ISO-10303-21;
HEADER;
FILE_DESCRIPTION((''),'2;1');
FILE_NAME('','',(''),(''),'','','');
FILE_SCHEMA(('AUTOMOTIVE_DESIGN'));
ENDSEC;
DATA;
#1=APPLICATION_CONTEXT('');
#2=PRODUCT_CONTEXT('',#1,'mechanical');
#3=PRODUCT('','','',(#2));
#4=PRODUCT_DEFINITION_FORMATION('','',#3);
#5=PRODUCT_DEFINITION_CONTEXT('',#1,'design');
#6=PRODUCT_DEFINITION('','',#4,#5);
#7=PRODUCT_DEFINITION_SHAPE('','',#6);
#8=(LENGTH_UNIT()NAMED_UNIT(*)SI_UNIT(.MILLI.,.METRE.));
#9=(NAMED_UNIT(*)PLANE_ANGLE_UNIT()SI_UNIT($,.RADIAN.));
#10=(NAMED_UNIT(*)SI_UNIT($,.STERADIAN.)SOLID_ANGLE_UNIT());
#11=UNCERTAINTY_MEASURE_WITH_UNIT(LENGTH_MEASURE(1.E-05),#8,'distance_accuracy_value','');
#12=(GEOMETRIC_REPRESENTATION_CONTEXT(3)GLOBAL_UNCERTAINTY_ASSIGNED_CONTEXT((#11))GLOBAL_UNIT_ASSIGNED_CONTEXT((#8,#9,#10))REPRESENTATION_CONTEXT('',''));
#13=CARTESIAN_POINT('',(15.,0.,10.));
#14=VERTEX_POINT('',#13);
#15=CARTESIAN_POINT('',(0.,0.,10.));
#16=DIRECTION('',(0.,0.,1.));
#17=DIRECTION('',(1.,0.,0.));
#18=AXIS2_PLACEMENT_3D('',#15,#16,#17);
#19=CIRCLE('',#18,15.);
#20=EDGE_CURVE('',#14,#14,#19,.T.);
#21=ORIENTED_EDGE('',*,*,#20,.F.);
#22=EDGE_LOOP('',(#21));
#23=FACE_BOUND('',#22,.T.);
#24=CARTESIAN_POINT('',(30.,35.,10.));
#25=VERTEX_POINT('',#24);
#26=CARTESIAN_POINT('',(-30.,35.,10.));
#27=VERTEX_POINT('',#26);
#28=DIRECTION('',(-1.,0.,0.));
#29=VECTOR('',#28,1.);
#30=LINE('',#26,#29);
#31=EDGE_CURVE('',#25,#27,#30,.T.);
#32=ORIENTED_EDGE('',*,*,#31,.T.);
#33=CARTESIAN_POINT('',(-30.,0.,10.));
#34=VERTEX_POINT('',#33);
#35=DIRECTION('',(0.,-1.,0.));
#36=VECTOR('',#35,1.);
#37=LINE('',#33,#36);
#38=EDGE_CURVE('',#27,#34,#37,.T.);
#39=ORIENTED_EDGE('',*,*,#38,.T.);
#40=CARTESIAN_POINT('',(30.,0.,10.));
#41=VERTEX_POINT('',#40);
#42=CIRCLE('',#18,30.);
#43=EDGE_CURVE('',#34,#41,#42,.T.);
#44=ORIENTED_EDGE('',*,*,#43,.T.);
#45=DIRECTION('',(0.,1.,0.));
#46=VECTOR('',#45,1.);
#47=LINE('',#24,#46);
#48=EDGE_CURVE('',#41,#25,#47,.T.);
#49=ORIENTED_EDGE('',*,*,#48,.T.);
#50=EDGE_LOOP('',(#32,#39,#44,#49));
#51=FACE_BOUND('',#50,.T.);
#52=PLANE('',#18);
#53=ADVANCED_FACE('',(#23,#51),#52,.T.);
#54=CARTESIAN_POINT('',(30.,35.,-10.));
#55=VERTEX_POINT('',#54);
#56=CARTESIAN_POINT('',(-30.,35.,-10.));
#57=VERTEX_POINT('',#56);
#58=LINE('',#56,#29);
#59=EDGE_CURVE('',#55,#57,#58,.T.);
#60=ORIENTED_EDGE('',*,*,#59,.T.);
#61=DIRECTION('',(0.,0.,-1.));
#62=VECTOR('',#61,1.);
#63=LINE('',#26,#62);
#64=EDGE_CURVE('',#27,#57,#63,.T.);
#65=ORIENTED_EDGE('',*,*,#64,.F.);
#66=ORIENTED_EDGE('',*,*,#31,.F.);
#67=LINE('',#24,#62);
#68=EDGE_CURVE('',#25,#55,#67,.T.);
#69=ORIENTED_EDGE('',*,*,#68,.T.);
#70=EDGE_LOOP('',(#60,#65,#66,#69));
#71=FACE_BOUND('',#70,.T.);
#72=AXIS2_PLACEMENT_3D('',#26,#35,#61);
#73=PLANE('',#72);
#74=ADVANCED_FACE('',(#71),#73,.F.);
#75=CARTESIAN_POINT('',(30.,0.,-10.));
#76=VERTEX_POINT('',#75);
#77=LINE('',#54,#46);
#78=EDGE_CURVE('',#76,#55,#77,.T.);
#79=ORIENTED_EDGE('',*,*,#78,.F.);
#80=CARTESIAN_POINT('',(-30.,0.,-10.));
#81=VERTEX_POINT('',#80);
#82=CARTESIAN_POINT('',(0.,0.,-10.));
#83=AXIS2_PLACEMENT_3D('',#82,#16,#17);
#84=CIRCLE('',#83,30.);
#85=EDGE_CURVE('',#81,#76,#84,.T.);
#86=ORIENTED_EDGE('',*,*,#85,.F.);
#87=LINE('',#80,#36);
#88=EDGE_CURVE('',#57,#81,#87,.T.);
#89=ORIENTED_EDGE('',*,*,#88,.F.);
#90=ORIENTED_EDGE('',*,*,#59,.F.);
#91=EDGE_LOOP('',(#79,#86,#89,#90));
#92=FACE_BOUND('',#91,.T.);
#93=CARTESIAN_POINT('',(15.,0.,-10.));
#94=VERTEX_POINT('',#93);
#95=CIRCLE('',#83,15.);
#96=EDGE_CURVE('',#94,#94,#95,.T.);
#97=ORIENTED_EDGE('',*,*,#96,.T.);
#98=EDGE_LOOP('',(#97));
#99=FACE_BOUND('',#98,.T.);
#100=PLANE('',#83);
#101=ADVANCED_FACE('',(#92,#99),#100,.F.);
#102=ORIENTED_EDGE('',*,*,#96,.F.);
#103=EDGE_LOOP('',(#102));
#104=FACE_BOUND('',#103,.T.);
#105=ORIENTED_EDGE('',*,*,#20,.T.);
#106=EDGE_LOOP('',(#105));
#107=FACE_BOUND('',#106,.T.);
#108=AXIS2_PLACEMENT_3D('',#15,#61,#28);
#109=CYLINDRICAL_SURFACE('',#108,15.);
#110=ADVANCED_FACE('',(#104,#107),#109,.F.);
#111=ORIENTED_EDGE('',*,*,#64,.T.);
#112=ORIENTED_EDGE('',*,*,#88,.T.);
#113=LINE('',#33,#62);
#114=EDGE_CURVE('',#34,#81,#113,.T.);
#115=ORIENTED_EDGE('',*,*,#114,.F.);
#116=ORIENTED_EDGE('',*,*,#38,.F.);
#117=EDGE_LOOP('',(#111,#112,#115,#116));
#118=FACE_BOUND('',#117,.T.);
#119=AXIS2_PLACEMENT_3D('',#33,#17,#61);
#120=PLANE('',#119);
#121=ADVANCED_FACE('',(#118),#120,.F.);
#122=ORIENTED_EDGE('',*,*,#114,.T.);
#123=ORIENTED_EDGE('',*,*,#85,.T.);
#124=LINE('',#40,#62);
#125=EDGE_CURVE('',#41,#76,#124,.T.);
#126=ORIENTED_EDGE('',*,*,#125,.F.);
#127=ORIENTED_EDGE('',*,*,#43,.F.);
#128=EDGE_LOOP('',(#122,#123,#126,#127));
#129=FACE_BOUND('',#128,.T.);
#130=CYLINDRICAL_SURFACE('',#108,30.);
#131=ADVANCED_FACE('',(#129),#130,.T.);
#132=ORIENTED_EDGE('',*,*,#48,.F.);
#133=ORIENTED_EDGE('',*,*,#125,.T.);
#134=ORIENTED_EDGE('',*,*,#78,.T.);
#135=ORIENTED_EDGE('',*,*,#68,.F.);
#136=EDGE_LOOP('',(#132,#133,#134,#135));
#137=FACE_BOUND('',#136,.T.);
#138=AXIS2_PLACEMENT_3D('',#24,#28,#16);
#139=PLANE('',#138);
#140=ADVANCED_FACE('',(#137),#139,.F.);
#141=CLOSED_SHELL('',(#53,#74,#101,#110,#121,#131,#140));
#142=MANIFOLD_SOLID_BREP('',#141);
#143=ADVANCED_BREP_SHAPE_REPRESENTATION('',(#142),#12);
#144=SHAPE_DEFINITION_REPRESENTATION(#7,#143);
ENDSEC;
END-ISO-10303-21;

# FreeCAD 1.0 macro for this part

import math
import FreeCAD as App
import Part
import Sketcher
from FreeCAD import Vector

doc = App.newDocument("Part")
body = doc.addObject("PartDesign::Body", "Body")

sketch1 = doc.addObject("Sketcher::SketchObject", "Sketch")
body.addObject(sketch1)
sketch1.AttachmentSupport = (doc.XY_Plane, [""])
sketch1.MapMode = "FlatFace"
sketch1.addGeometry([
    Part.LineSegment(Vector(-30, 35, 0), Vector(-30, 0, 0)),
    Part.ArcOfCircle(Part.Circle(Vector(0, 0, 0), Vector(0, 0, 1), 30), math.radians(180), math.radians(360)),
    Part.LineSegment(Vector(30, 0, 0), Vector(30, 35, 0)),
    Part.LineSegment(Vector(30, 35, 0), Vector(-30, 35, 0)),
    Part.Circle(Vector(0, 0, 0), Vector(0, 0, 1), 15),
], False)
sketch1.addConstraint([
    Sketcher.Constraint("Tangent", 0, 2, 1, 1),
    Sketcher.Constraint("Tangent", 1, 2, 2, 1),
    Sketcher.Constraint("Coincident", 2, 2, 3, 1),
    Sketcher.Constraint("Coincident", 3, 2, 0, 1),
    Sketcher.Constraint("Vertical", 0),
    Sketcher.Constraint("Vertical", 2),
    Sketcher.Constraint("Horizontal", 3),
    Sketcher.Constraint("Coincident", 1, 3, -1, 1),
    Sketcher.Constraint("Coincident", 4, 3, -1, 1),
    Sketcher.Constraint("Diameter", 4, 30.0),
    Sketcher.Constraint("Radius", 1, 30.0),
    Sketcher.Constraint("DistanceY", 0, 2, 0, 1, 35.0),
])
pad1 = doc.addObject("PartDesign::Pad", "Pad")
body.addObject(pad1)
pad1.Profile = sketch1
pad1.Length = 20
pad1.Midplane = True

doc.recompute()
